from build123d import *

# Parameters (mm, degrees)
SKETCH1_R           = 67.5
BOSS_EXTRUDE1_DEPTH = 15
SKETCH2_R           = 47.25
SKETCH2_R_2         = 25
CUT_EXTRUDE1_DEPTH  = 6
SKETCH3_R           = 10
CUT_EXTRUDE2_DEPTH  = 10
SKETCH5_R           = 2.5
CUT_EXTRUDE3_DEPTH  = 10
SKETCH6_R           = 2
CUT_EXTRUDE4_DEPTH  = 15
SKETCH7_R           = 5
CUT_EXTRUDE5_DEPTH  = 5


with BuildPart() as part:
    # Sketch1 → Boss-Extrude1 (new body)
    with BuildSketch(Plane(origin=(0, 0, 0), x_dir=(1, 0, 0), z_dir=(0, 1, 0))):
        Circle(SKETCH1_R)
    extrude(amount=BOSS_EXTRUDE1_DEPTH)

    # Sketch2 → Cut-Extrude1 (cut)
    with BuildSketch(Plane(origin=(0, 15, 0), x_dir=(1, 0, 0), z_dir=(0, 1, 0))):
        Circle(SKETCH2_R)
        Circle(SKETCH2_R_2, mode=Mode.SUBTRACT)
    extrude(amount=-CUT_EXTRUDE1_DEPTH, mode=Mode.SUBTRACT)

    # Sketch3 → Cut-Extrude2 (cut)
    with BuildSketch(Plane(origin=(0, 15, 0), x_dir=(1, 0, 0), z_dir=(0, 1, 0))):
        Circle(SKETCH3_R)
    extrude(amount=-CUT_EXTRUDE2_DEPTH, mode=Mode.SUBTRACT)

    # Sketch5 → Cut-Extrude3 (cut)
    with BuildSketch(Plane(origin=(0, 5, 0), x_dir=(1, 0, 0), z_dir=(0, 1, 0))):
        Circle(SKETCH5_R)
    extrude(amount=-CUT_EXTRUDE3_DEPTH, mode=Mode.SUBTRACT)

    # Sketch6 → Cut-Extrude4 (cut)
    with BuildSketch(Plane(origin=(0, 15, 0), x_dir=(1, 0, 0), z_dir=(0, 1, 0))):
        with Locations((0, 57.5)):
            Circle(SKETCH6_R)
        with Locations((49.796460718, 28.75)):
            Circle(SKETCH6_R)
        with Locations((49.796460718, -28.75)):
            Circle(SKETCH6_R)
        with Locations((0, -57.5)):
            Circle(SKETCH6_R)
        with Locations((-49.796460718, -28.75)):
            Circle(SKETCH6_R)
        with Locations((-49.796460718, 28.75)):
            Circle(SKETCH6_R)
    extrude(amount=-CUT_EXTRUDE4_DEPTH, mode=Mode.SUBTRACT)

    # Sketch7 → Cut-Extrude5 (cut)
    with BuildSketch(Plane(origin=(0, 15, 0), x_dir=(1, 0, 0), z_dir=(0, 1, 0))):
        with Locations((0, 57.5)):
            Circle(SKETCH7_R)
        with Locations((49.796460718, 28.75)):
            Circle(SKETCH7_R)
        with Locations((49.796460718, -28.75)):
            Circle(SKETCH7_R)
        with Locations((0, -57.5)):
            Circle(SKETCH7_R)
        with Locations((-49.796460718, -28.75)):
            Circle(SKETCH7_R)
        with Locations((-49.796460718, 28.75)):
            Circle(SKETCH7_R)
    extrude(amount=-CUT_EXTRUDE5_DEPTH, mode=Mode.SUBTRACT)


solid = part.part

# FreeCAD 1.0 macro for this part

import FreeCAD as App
import Part
import Sketcher
from FreeCAD import Vector

doc = App.newDocument("Part")
body = doc.addObject("PartDesign::Body", "Body")

# Sketch on XZ plane
sketch1 = body.newObject("Sketcher::SketchObject", "Sketch")
sketch1.AttachmentSupport = (doc.getObject("XZ_Plane"), [""])
sketch1.MapMode = "FlatFace"
sketch1.addGeometry(Part.Circle(Vector(0, 0, 0), Vector(0, 0, 1), 67.5), False)
sketch1.addConstraint(Sketcher.Constraint("Coincident", 0, 3, -1, 1))
sketch1.addConstraint(Sketcher.Constraint("Diameter", 0, 135.0))
pad1 = body.newObject("PartDesign::Pad", "Pad")
pad1.Profile = sketch1
pad1.Length = 15
pad1.Reversed = True

# Sketch on XZ plane
sketch2 = body.newObject("Sketcher::SketchObject", "Sketch001")
sketch2.AttachmentSupport = (doc.getObject("XZ_Plane"), [""])
sketch2.MapMode = "FlatFace"
sketch2.AttachmentOffset = App.Placement(Vector(0, 0, -15), App.Rotation())
sketch2.addGeometry(Part.Circle(Vector(0, 0, 0), Vector(0, 0, 1), 47.25), False)
sketch2.addGeometry(Part.Circle(Vector(0, 0, 0), Vector(0, 0, 1), 25), False)
sketch2.addConstraint(Sketcher.Constraint("Coincident", 0, 3, -1, 1))
sketch2.addConstraint(Sketcher.Constraint("Coincident", 1, 3, -1, 1))
sketch2.addConstraint(Sketcher.Constraint("Diameter", 1, 50.0))
sketch2.addConstraint(Sketcher.Constraint("Diameter", 0, 94.5))
pocket1 = body.newObject("PartDesign::Pocket", "Pocket")
pocket1.Profile = sketch2
pocket1.Length = 6
pocket1.Reversed = True

# Sketch on XZ plane
sketch3 = body.newObject("Sketcher::SketchObject", "Sketch002")
sketch3.AttachmentSupport = (doc.getObject("XZ_Plane"), [""])
sketch3.MapMode = "FlatFace"
sketch3.AttachmentOffset = App.Placement(Vector(0, 0, -15), App.Rotation())
sketch3.addGeometry(Part.Circle(Vector(0, 0, 0), Vector(0, 0, 1), 10), False)
sketch3.addConstraint(Sketcher.Constraint("Coincident", 0, 3, -1, 1))
sketch3.addConstraint(Sketcher.Constraint("Diameter", 0, 20.0))
pocket2 = body.newObject("PartDesign::Pocket", "Pocket001")
pocket2.Profile = sketch3
pocket2.Length = 10
pocket2.Reversed = True

# Sketch on XZ plane
sketch4 = body.newObject("Sketcher::SketchObject", "Sketch003")
sketch4.AttachmentSupport = (doc.getObject("XZ_Plane"), [""])
sketch4.MapMode = "FlatFace"
sketch4.AttachmentOffset = App.Placement(Vector(0, 0, -5), App.Rotation())
sketch4.addGeometry(Part.Circle(Vector(0, 0, 0), Vector(0, 0, 1), 2.5), False)
sketch4.addConstraint(Sketcher.Constraint("Coincident", 0, 3, -1, 1))
sketch4.addConstraint(Sketcher.Constraint("Diameter", 0, 5.0))
pocket3 = body.newObject("PartDesign::Pocket", "Pocket002")
pocket3.Profile = sketch4
pocket3.Length = 10
pocket3.Reversed = True

# Sketch on XZ plane
sketch5 = body.newObject("Sketcher::SketchObject", "Sketch004")
sketch5.AttachmentSupport = (doc.getObject("XZ_Plane"), [""])
sketch5.MapMode = "FlatFace"
sketch5.AttachmentOffset = App.Placement(Vector(0, 0, -15), App.Rotation())
sketch5.addGeometry(Part.Circle(Vector(0, -57.5, 0), Vector(0, 0, 1), 2), False)
sketch5.addGeometry(Part.Circle(Vector(49.796461, -28.75, 0), Vector(0, 0, 1), 2), False)
sketch5.addGeometry(Part.Circle(Vector(49.796461, 28.75, 0), Vector(0, 0, 1), 2), False)
sketch5.addGeometry(Part.Circle(Vector(0, 57.5, 0), Vector(0, 0, 1), 2), False)
sketch5.addGeometry(Part.Circle(Vector(-49.796461, 28.75, 0), Vector(0, 0, 1), 2), False)
sketch5.addGeometry(Part.Circle(Vector(-49.796461, -28.75, 0), Vector(0, 0, 1), 2), False)
sketch5.addConstraint(Sketcher.Constraint("Equal", 0, 1))
sketch5.addConstraint(Sketcher.Constraint("Equal", 1, 2))
sketch5.addConstraint(Sketcher.Constraint("Equal", 2, 3))
sketch5.addConstraint(Sketcher.Constraint("Equal", 3, 4))
sketch5.addConstraint(Sketcher.Constraint("Equal", 4, 5))
sketch5.addConstraint(Sketcher.Constraint("Symmetric", 0, 3, 3, 3, -1, 1))
sketch5.addConstraint(Sketcher.Constraint("Symmetric", 1, 3, 4, 3, -1, 1))
sketch5.addConstraint(Sketcher.Constraint("Symmetric", 2, 3, 5, 3, -1, 1))
sketch5.addConstraint(Sketcher.Constraint("Symmetric", 2, 3, 4, 3, -2))
sketch5.addConstraint(Sketcher.Constraint("PointOnObject", 0, 3, -2))
sketch5.addConstraint(Sketcher.Constraint("Diameter", 0, 4.0))
sketch5.addConstraint(Sketcher.Constraint("DistanceY", 0, 3, 3, 3, 115.0))
sketch5.addConstraint(Sketcher.Constraint("DistanceY", 1, 3, 2, 3, 57.5))
sketch5.addConstraint(Sketcher.Constraint("DistanceX", -1, 1, 1, 3, 49.796461))
pocket4 = body.newObject("PartDesign::Pocket", "Pocket003")
pocket4.Profile = sketch5
pocket4.Length = 15
pocket4.Reversed = True

# Sketch on XZ plane
sketch6 = body.newObject("Sketcher::SketchObject", "Sketch005")
sketch6.AttachmentSupport = (doc.getObject("XZ_Plane"), [""])
sketch6.MapMode = "FlatFace"
sketch6.AttachmentOffset = App.Placement(Vector(0, 0, -15), App.Rotation())
sketch6.addGeometry(Part.Circle(Vector(0, -57.5, 0), Vector(0, 0, 1), 5), False)
sketch6.addGeometry(Part.Circle(Vector(49.796461, -28.75, 0), Vector(0, 0, 1), 5), False)
sketch6.addGeometry(Part.Circle(Vector(49.796461, 28.75, 0), Vector(0, 0, 1), 5), False)
sketch6.addGeometry(Part.Circle(Vector(0, 57.5, 0), Vector(0, 0, 1), 5), False)
sketch6.addGeometry(Part.Circle(Vector(-49.796461, 28.75, 0), Vector(0, 0, 1), 5), False)
sketch6.addGeometry(Part.Circle(Vector(-49.796461, -28.75, 0), Vector(0, 0, 1), 5), False)
sketch6.addConstraint(Sketcher.Constraint("Equal", 0, 1))
sketch6.addConstraint(Sketcher.Constraint("Equal", 1, 2))
sketch6.addConstraint(Sketcher.Constraint("Equal", 2, 3))
sketch6.addConstraint(Sketcher.Constraint("Equal", 3, 4))
sketch6.addConstraint(Sketcher.Constraint("Equal", 4, 5))
sketch6.addConstraint(Sketcher.Constraint("Symmetric", 0, 3, 3, 3, -1, 1))
sketch6.addConstraint(Sketcher.Constraint("Symmetric", 1, 3, 4, 3, -1, 1))
sketch6.addConstraint(Sketcher.Constraint("Symmetric", 2, 3, 5, 3, -1, 1))
sketch6.addConstraint(Sketcher.Constraint("Symmetric", 2, 3, 4, 3, -2))
sketch6.addConstraint(Sketcher.Constraint("PointOnObject", 0, 3, -2))
sketch6.addConstraint(Sketcher.Constraint("Diameter", 0, 10.0))
sketch6.addConstraint(Sketcher.Constraint("DistanceY", 0, 3, 3, 3, 115.0))
sketch6.addConstraint(Sketcher.Constraint("DistanceY", 1, 3, 2, 3, 57.5))
sketch6.addConstraint(Sketcher.Constraint("DistanceX", -1, 1, 1, 3, 49.796461))
pocket5 = body.newObject("PartDesign::Pocket", "Pocket004")
pocket5.Profile = sketch6
pocket5.Length = 5
pocket5.Reversed = True

doc.recompute()
